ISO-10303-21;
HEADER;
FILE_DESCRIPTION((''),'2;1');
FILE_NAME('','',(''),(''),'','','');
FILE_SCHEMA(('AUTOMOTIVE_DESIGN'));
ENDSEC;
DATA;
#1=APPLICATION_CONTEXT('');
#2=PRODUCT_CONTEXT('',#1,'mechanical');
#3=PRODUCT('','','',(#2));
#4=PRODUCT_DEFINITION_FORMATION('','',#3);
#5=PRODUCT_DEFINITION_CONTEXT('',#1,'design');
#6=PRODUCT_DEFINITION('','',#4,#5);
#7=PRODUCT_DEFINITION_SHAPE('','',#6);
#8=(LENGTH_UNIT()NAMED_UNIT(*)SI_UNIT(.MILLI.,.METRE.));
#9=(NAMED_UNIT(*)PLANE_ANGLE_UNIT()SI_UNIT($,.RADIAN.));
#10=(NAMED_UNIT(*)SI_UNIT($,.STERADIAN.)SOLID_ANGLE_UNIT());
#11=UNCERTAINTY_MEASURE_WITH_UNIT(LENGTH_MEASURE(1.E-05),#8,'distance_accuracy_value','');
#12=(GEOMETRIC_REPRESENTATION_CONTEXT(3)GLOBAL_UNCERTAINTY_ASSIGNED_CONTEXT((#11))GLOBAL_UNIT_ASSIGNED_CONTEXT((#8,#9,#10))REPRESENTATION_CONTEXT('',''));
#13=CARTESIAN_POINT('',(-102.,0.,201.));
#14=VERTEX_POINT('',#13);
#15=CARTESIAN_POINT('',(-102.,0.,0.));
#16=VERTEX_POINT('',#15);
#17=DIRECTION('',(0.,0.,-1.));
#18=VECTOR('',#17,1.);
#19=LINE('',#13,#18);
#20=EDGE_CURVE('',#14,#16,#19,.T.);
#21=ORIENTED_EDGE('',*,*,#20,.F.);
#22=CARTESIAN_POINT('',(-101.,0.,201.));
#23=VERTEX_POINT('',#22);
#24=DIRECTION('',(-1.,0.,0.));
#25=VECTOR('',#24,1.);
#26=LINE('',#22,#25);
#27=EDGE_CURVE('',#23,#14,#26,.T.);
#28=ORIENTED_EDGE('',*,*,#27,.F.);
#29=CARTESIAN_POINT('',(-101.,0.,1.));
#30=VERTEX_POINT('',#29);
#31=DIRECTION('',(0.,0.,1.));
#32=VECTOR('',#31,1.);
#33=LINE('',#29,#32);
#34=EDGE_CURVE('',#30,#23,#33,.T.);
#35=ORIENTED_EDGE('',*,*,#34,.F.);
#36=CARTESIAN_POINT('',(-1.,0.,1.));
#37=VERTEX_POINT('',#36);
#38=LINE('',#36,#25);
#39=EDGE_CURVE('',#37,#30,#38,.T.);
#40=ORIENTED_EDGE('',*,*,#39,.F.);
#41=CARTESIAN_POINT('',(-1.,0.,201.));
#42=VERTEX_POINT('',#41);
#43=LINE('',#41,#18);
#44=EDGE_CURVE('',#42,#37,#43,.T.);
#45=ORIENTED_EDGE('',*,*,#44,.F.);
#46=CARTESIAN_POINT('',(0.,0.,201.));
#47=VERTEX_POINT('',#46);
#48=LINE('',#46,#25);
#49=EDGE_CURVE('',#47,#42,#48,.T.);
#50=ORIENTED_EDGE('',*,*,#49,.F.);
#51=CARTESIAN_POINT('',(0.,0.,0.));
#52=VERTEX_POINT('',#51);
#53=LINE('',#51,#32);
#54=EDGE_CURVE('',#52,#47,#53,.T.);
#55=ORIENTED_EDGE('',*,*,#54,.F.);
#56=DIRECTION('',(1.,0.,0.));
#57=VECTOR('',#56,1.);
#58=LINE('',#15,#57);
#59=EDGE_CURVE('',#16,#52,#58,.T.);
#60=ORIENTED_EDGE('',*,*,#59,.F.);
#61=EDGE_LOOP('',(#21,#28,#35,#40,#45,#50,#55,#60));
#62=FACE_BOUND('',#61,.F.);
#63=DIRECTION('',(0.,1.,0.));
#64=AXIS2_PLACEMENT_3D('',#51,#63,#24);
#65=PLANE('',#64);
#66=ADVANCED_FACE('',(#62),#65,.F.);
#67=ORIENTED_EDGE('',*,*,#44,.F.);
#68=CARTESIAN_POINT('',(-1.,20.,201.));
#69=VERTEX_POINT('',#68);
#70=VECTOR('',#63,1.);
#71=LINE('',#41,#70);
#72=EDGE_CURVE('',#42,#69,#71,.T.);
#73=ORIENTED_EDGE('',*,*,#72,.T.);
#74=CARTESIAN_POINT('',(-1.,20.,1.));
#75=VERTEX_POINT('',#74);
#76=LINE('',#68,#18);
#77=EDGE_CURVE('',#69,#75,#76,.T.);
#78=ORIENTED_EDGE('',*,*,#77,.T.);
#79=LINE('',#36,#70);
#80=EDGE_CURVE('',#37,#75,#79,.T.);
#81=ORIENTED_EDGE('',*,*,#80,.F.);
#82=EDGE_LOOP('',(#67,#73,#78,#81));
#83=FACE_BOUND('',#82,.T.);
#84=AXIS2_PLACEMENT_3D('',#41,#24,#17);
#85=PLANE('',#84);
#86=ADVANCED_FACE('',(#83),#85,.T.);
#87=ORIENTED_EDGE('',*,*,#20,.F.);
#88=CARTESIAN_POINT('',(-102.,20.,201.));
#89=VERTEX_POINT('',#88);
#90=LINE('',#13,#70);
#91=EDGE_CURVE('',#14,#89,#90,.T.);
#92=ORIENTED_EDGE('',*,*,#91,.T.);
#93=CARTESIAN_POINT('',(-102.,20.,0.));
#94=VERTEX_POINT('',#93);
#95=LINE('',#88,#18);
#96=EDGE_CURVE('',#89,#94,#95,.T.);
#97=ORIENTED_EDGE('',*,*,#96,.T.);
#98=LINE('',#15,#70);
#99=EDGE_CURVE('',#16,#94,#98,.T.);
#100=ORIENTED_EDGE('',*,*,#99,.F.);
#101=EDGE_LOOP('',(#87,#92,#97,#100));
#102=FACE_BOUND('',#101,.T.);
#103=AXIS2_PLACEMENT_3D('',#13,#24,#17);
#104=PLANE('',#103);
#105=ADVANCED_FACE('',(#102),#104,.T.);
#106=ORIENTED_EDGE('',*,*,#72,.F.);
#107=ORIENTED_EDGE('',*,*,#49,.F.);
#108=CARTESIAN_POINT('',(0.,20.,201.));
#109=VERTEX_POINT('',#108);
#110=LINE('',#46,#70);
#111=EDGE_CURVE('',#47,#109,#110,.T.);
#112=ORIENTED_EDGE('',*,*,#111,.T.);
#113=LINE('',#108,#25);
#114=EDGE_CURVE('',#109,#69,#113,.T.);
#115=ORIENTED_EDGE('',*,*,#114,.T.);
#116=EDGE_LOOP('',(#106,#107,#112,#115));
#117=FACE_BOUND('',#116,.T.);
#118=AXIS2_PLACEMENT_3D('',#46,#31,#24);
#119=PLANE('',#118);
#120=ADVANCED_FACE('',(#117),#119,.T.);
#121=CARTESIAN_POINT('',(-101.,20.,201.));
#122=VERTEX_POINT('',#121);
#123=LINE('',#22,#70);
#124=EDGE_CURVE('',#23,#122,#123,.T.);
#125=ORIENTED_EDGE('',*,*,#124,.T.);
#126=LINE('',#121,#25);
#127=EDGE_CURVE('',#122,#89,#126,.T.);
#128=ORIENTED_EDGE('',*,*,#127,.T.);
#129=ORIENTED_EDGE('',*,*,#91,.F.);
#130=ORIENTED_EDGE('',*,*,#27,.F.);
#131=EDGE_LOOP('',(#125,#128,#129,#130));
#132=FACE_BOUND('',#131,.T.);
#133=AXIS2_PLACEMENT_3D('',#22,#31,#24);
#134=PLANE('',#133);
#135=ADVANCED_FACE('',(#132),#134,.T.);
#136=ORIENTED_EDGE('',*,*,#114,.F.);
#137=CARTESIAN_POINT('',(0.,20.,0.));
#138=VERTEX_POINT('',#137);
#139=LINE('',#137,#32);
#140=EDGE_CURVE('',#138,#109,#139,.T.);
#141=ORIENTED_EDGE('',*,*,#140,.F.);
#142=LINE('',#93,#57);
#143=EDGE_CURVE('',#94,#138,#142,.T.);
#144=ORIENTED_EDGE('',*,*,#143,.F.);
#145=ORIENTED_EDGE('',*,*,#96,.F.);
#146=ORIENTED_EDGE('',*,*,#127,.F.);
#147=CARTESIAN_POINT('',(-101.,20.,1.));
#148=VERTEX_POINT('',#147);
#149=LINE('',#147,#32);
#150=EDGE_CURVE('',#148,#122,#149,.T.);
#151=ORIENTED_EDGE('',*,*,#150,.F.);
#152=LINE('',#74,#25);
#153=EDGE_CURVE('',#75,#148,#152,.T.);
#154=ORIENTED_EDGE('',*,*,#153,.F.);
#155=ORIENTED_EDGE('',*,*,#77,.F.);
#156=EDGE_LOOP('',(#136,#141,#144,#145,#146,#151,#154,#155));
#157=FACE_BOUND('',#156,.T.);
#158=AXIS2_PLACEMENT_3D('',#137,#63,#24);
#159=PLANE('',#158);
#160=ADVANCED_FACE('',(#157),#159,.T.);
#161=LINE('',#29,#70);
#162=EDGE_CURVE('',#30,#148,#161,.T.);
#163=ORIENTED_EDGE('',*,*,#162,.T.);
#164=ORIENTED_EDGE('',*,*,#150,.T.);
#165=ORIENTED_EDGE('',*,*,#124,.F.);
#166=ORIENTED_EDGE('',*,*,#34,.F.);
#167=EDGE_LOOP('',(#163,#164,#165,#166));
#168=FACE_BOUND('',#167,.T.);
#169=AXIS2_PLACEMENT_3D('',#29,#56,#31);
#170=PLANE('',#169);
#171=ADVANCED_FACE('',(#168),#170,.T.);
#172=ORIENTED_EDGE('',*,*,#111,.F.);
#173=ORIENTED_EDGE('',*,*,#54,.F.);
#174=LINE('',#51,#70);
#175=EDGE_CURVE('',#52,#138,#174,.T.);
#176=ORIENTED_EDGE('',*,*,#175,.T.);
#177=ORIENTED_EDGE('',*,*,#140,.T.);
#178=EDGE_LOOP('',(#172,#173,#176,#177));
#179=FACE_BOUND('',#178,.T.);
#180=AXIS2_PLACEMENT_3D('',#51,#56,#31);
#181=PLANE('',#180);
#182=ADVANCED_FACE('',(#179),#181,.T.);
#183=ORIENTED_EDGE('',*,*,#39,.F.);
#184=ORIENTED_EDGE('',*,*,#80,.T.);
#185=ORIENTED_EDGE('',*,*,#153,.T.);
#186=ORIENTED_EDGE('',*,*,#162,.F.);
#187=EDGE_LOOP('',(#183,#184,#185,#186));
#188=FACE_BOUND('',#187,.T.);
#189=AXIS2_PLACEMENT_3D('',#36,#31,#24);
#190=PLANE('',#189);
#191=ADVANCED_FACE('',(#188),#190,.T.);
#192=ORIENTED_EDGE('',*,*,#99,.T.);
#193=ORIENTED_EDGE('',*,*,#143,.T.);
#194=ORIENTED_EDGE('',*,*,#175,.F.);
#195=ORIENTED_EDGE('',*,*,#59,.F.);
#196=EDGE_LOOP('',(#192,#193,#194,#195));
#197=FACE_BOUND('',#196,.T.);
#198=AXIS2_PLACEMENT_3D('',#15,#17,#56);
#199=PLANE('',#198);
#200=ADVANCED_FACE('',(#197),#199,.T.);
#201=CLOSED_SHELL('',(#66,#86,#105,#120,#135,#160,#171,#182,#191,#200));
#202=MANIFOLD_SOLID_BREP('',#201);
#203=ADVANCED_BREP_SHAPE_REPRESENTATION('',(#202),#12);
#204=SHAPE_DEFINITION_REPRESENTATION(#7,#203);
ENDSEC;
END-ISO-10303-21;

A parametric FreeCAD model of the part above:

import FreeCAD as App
import Part
import Sketcher
Q = App.Units.Quantity

doc = App.newDocument("Part")
body = doc.addObject("PartDesign::Body", "Body")

sketch1 = body.newObject("Sketcher::SketchObject", "Sketch")
sketch1.AttachmentSupport = (doc.getObject("XZ_Plane"), [""])
sketch1.MapMode = "FlatFace"
sketch1.addGeometry([
    Part.LineSegment(App.Vector(0, 0, 0), App.Vector(-102, 0, 0)),
    Part.LineSegment(App.Vector(-102, 0, 0), App.Vector(-102, 201, 0)),
    Part.LineSegment(App.Vector(-102, 201, 0), App.Vector(-101, 201, 0)),
    Part.LineSegment(App.Vector(-101, 201, 0), App.Vector(-101, 1, 0)),
    Part.LineSegment(App.Vector(-101, 1, 0), App.Vector(-1, 1, 0)),
    Part.LineSegment(App.Vector(-1, 1, 0), App.Vector(-1, 201, 0)),
    Part.LineSegment(App.Vector(-1, 201, 0), App.Vector(0, 201, 0)),
    Part.LineSegment(App.Vector(0, 201, 0), App.Vector(0, 0, 0)),
], False)
sketch1.addConstraint([
    Sketcher.Constraint("Coincident", 0, 2, 1, 1),
    Sketcher.Constraint("Coincident", 1, 2, 2, 1),
    Sketcher.Constraint("Coincident", 2, 2, 3, 1),
    Sketcher.Constraint("Coincident", 3, 2, 4, 1),
    Sketcher.Constraint("Coincident", 4, 2, 5, 1),
    Sketcher.Constraint("Coincident", 5, 2, 6, 1),
    Sketcher.Constraint("Coincident", 6, 2, 7, 1),
    Sketcher.Constraint("Coincident", 7, 2, 0, 1),
    Sketcher.Constraint("Horizontal", 0),
    Sketcher.Constraint("Vertical", 1),
    Sketcher.Constraint("Horizontal", 2),
    Sketcher.Constraint("Vertical", 3),
    Sketcher.Constraint("Horizontal", 4),
    Sketcher.Constraint("Vertical", 5),
    Sketcher.Constraint("Horizontal", 6),
    Sketcher.Constraint("Vertical", 7),
    Sketcher.Constraint("Coincident", 7, 2, -1, 1),
    Sketcher.Constraint("Horizontal", 2, 2, 5, 2),
    Sketcher.Constraint("Equal", 2, 6),
    Sketcher.Constraint("DistanceX", 0, 2, 0, 1, Q("102 mm")),
    Sketcher.Constraint("DistanceX", 2, 1, 2, 2, Q("1 mm")),
    Sketcher.Constraint("DistanceY", 1, 1, 1, 2, Q("201 mm")),
    Sketcher.Constraint("DistanceY", -1, 1, 3, 2, Q("1 mm")),
])
pad1 = body.newObject("PartDesign::Pad", "Pad")
pad1.Profile = sketch1
pad1.Length = 20
pad1.Reversed = True

doc.recompute()
